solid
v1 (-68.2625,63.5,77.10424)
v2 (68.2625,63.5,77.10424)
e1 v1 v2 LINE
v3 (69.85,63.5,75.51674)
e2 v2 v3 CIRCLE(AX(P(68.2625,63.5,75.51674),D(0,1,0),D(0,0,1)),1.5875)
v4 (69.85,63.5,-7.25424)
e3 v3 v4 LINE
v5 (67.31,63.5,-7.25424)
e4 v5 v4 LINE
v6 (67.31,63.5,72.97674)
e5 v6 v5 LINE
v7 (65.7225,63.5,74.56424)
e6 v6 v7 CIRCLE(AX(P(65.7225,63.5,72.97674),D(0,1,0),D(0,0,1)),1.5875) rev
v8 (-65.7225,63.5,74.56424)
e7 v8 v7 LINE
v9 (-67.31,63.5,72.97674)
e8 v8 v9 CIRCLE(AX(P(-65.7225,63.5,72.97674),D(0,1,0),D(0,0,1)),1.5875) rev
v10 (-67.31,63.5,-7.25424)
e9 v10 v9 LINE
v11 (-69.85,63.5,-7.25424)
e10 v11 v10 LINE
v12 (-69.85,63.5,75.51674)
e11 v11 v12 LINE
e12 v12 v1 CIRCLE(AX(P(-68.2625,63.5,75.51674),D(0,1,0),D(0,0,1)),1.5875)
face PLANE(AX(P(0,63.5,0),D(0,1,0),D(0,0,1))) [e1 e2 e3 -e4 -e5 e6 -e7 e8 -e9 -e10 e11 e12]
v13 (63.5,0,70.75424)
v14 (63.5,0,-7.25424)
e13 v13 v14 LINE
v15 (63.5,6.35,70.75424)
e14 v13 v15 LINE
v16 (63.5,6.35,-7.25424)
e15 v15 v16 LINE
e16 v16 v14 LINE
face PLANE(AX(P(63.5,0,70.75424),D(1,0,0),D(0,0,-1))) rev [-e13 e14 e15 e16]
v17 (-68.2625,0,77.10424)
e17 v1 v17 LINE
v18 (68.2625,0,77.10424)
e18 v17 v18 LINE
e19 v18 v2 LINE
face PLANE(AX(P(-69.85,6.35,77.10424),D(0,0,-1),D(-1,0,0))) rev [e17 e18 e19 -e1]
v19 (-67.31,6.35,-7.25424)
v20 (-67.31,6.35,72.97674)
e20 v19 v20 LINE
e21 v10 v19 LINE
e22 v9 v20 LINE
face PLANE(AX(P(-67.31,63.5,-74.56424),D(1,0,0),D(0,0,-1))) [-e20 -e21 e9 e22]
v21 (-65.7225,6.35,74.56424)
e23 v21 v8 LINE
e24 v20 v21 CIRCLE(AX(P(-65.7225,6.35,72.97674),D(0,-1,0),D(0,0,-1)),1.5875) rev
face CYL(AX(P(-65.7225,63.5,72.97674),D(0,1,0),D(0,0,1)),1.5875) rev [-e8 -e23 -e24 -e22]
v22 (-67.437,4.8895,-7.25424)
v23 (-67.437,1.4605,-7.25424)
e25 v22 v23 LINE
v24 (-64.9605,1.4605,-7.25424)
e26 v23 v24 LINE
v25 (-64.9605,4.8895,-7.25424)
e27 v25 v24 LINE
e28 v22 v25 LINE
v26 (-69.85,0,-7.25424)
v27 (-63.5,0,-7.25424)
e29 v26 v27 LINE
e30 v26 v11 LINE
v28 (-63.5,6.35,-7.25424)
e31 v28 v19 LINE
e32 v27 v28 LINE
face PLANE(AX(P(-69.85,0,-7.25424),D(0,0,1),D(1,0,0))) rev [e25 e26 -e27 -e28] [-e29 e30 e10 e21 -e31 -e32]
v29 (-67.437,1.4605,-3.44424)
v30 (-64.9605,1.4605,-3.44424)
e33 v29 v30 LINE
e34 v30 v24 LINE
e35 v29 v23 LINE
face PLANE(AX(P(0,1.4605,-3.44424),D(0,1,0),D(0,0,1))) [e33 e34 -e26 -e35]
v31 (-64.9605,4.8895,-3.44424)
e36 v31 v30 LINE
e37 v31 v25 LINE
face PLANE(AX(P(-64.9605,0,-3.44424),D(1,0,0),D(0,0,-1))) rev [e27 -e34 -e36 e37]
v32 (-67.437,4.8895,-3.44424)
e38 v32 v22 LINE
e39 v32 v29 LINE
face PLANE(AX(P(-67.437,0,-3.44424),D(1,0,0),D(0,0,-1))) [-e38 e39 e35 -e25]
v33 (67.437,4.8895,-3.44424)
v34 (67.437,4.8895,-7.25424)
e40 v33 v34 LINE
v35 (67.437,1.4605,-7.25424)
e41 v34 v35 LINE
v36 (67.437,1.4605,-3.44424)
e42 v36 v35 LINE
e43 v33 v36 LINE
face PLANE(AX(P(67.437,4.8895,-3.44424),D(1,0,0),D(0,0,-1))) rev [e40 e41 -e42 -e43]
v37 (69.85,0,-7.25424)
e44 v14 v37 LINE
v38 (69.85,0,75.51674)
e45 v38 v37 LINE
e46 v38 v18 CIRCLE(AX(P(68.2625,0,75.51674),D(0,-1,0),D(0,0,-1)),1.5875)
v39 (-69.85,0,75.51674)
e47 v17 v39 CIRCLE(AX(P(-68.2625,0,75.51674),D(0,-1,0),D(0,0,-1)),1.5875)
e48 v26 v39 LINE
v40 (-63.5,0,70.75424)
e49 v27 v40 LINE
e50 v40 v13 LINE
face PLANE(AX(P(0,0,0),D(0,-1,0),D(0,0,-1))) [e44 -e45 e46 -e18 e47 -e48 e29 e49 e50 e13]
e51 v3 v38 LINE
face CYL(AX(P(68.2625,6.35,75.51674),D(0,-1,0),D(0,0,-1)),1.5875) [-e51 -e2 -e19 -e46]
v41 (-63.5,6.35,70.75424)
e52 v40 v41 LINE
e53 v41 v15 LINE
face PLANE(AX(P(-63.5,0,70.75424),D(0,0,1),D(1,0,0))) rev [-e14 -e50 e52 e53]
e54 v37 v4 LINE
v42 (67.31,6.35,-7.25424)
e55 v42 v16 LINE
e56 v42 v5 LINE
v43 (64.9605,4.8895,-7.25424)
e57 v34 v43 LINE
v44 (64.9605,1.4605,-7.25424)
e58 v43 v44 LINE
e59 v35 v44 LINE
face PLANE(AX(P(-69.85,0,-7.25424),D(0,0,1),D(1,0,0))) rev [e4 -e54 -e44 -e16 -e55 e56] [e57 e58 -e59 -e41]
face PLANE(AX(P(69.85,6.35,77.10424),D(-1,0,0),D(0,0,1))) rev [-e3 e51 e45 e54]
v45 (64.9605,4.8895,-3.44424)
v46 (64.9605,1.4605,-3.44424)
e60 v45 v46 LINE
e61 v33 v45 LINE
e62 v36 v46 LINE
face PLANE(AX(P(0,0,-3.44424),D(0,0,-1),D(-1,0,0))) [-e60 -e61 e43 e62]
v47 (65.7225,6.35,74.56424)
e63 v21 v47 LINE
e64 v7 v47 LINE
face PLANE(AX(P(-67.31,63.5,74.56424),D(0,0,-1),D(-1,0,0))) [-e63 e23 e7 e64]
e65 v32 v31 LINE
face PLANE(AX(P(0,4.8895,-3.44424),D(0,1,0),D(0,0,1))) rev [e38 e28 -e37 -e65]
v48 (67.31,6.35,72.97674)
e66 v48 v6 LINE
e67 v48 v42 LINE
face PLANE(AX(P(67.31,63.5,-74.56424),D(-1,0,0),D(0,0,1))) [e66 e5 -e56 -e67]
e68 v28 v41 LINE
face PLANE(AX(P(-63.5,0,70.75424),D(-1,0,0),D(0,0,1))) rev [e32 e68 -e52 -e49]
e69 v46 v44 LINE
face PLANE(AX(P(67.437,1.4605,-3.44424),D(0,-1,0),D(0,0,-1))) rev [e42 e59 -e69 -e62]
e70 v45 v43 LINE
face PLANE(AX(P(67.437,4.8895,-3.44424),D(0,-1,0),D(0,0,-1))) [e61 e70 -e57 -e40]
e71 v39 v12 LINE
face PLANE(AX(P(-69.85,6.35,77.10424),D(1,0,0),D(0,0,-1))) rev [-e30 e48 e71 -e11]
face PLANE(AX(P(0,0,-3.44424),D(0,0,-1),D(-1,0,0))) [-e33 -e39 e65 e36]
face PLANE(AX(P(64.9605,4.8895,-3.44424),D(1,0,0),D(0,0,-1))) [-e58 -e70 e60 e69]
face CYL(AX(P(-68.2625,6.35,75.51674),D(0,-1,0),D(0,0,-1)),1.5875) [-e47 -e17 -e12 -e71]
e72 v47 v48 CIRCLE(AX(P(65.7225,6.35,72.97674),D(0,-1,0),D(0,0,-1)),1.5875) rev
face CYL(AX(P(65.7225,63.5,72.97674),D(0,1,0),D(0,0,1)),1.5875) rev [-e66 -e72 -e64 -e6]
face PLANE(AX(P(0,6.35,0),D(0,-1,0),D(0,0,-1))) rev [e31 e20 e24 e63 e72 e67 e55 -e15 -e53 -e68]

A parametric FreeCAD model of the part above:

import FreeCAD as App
import Part
import Sketcher
from FreeCAD import Vector
Q = App.Units.Quantity


def edges_at(feature, points):
    """Names of the edges that pass closest to the given points."""
    edges = feature.Shape.Edges
    near = lambda p: min(range(len(edges)), key=lambda i: edges[i].distToShape(Part.Vertex(*p))[0])
    return sorted({f"Edge{near(p) + 1}" for p in points})

doc = App.newDocument("Part")
body = doc.addObject("PartDesign::Body", "Body")

sketch1 = body.newObject("Sketcher::SketchObject", "Sketch")
sketch1.AttachmentSupport = (doc.getObject("XZ_Plane"), [""])
sketch1.MapMode = "FlatFace"
sketch1.addGeometry(Part.LineSegment(Vector(-70, -77, 0), Vector(-70, 77, 0)), False)
sketch1.addGeometry(Part.LineSegment(Vector(-70, 77, 0), Vector(70, 77, 0)), False)
sketch1.addGeometry(Part.LineSegment(Vector(70, 77, 0), Vector(70, -77, 0)), False)
sketch1.addGeometry(Part.LineSegment(Vector(70, -77, 0), Vector(-70, -77, 0)), False)
sketch1.addConstraint(Sketcher.Constraint("Coincident", 0, 2, 1, 1))
sketch1.addConstraint(Sketcher.Constraint("Coincident", 1, 2, 2, 1))
sketch1.addConstraint(Sketcher.Constraint("Coincident", 2, 2, 3, 1))
sketch1.addConstraint(Sketcher.Constraint("Coincident", 3, 2, 0, 1))
sketch1.addConstraint(Sketcher.Constraint("Vertical", 0))
sketch1.addConstraint(Sketcher.Constraint("Horizontal", 1))
sketch1.addConstraint(Sketcher.Constraint("Vertical", 2))
sketch1.addConstraint(Sketcher.Constraint("Horizontal", 3))
sketch1.addConstraint(Sketcher.Constraint("Symmetric", 0, 2, 2, 2, -1, 1))
sketch1.addConstraint(Sketcher.Constraint("DistanceX", 1, 1, 1, 2, Q("5.5 in")))
sketch1.addConstraint(Sketcher.Constraint("DistanceY", 0, 1, 0, 2, Q("6.0712 in")))
pad1 = body.newObject("PartDesign::Pad", "Pad")
pad1.Profile = sketch1
pad1.Length = Q("0.25 in")
pad1.Reversed = True

sketch2 = body.newObject("Sketcher::SketchObject", "Sketch001")
sketch2.AttachmentSupport = (doc.getObject("XZ_Plane"), [""])
sketch2.MapMode = "FlatFace"
sketch2.AttachmentOffset = App.Placement(Vector(0, 0, -0.25 * 25.4), App.Rotation())
sketch2.addGeometry(Part.LineSegment(Vector(-64, -71, 0), Vector(-64, 71, 0)), False)
sketch2.addGeometry(Part.LineSegment(Vector(-64, 71, 0), Vector(64, 71, 0)), False)
sketch2.addGeometry(Part.LineSegment(Vector(64, 71, 0), Vector(64, -71, 0)), False)
sketch2.addGeometry(Part.LineSegment(Vector(64, -71, 0), Vector(-64, -71, 0)), False)
sketch2.addConstraint(Sketcher.Constraint("Coincident", 0, 2, 1, 1))
sketch2.addConstraint(Sketcher.Constraint("Coincident", 1, 2, 2, 1))
sketch2.addConstraint(Sketcher.Constraint("Coincident", 2, 2, 3, 1))
sketch2.addConstraint(Sketcher.Constraint("Coincident", 3, 2, 0, 1))
sketch2.addConstraint(Sketcher.Constraint("Vertical", 0))
sketch2.addConstraint(Sketcher.Constraint("Horizontal", 1))
sketch2.addConstraint(Sketcher.Constraint("Vertical", 2))
sketch2.addConstraint(Sketcher.Constraint("Horizontal", 3))
sketch2.addConstraint(Sketcher.Constraint("Symmetric", 0, 2, 2, 2, -1, 1))
sketch2.addConstraint(Sketcher.Constraint("DistanceX", 1, 1, 1, 2, Q("5 in")))
sketch2.addConstraint(Sketcher.Constraint("DistanceY", 0, 1, 0, 2, Q("5.5712 in")))
pocket1 = body.newObject("PartDesign::Pocket", "Pocket")
pocket1.Profile = sketch2
pocket1.Length = Q("0.25 in")
pocket1.Reversed = True

sketch3 = body.newObject("Sketcher::SketchObject", "Sketch002")
sketch3.AttachmentSupport = (doc.getObject("XZ_Plane"), [""])
sketch3.MapMode = "FlatFace"
sketch3.AttachmentOffset = App.Placement(Vector(0, 0, -0.25 * 25.4), App.Rotation())
sketch3.addGeometry(Part.LineSegment(Vector(-70, -77, 0), Vector(-70, 77, 0)), False)
sketch3.addGeometry(Part.LineSegment(Vector(-70, 77, 0), Vector(70, 77, 0)), False)
sketch3.addGeometry(Part.LineSegment(Vector(70, 77, 0), Vector(70, -77, 0)), False)
sketch3.addGeometry(Part.LineSegment(Vector(70, -77, 0), Vector(-70, -77, 0)), False)
sketch3.addGeometry(Part.LineSegment(Vector(67, 75, 0), Vector(-67, 75, 0)), False)
sketch3.addGeometry(Part.LineSegment(Vector(-67, 75, 0), Vector(-67, -75, 0)), False)
sketch3.addGeometry(Part.LineSegment(Vector(-67, -75, 0), Vector(67, -75, 0)), False)
sketch3.addGeometry(Part.LineSegment(Vector(67, -75, 0), Vector(67, 75, 0)), False)
sketch3.addConstraint(Sketcher.Constraint("Coincident", 0, 2, 1, 1))
sketch3.addConstraint(Sketcher.Constraint("Coincident", 1, 2, 2, 1))
sketch3.addConstraint(Sketcher.Constraint("Coincident", 2, 2, 3, 1))
sketch3.addConstraint(Sketcher.Constraint("Coincident", 3, 2, 0, 1))
sketch3.addConstraint(Sketcher.Constraint("Coincident", 4, 2, 5, 1))
sketch3.addConstraint(Sketcher.Constraint("Coincident", 5, 2, 6, 1))
sketch3.addConstraint(Sketcher.Constraint("Coincident", 6, 2, 7, 1))
sketch3.addConstraint(Sketcher.Constraint("Coincident", 7, 2, 4, 1))
sketch3.addConstraint(Sketcher.Constraint("Vertical", 0))
sketch3.addConstraint(Sketcher.Constraint("Horizontal", 1))
sketch3.addConstraint(Sketcher.Constraint("Vertical", 2))
sketch3.addConstraint(Sketcher.Constraint("Horizontal", 3))
sketch3.addConstraint(Sketcher.Constraint("Horizontal", 4))
sketch3.addConstraint(Sketcher.Constraint("Vertical", 5))
sketch3.addConstraint(Sketcher.Constraint("Horizontal", 6))
sketch3.addConstraint(Sketcher.Constraint("Vertical", 7))
sketch3.addConstraint(Sketcher.Constraint("Symmetric", 0, 2, 2, 2, -1, 1))
sketch3.addConstraint(Sketcher.Constraint("Symmetric", 4, 2, 6, 2, -1, 1))
sketch3.addConstraint(Sketcher.Constraint("DistanceX", 1, 1, 1, 2, Q("5.5 in")))
sketch3.addConstraint(Sketcher.Constraint("DistanceX", 4, 2, 4, 1, Q("5.3 in")))
sketch3.addConstraint(Sketcher.Constraint("DistanceY", 4, 2, 0, 2, Q("0.1 in")))
sketch3.addConstraint(Sketcher.Constraint("DistanceY", 0, 1, 0, 2, Q("6.0712 in")))
pad2 = body.newObject("PartDesign::Pad", "Pad001")
pad2.Profile = sketch3
pad2.Length = Q("2.25 in")
pad2.Reversed = True

sketch4 = body.newObject("Sketcher::SketchObject", "Sketch003")
sketch4.AttachmentSupport = (doc.getObject("XZ_Plane"), [""])
sketch4.MapMode = "FlatFace"
sketch4.AttachmentOffset = App.Placement(Vector(0, 0, -2.5 * 25.4), App.Rotation())
sketch4.addGeometry(Part.LineSegment(Vector(-70, -77, 0), Vector(-70, -7, 0)), False)
sketch4.addGeometry(Part.LineSegment(Vector(-70, -7, 0), Vector(70, -7, 0)), False)
sketch4.addGeometry(Part.LineSegment(Vector(70, -7, 0), Vector(70, -77, 0)), False)
sketch4.addGeometry(Part.LineSegment(Vector(70, -77, 0), Vector(-70, -77, 0)), False)
sketch4.addConstraint(Sketcher.Constraint("Coincident", 0, 2, 1, 1))
sketch4.addConstraint(Sketcher.Constraint("Coincident", 1, 2, 2, 1))
sketch4.addConstraint(Sketcher.Constraint("Coincident", 2, 2, 3, 1))
sketch4.addConstraint(Sketcher.Constraint("Coincident", 3, 2, 0, 1))
sketch4.addConstraint(Sketcher.Constraint("Vertical", 0))
sketch4.addConstraint(Sketcher.Constraint("Horizontal", 1))
sketch4.addConstraint(Sketcher.Constraint("Vertical", 2))
sketch4.addConstraint(Sketcher.Constraint("Horizontal", 3))
sketch4.addConstraint(Sketcher.Constraint("DistanceX", 1, 1, 1, 2, Q("5.5 in")))
sketch4.addConstraint(Sketcher.Constraint("DistanceY", 0, 1, 0, 2, Q("2.75 in")))
sketch4.addConstraint(Sketcher.Constraint("DistanceX", 0, 2, -1, 1, Q("2.75 in")))
sketch4.addConstraint(Sketcher.Constraint("DistanceY", 0, 2, -1, 1, Q("0.2856 in")))
pocket2 = body.newObject("PartDesign::Pocket", "Pocket001")
pocket2.Profile = sketch4
pocket2.Type = "ThroughAll"
pocket2.Reversed = True

sketch5 = body.newObject("Sketcher::SketchObject", "Sketch004")
sketch5.AttachmentSupport = (doc.getObject("XY_Plane"), [""])
sketch5.MapMode = "FlatFace"
sketch5.AttachmentOffset = App.Placement(Vector(0, 0, -0.2856 * 25.4), App.Rotation())
sketch5.addGeometry(Part.LineSegment(Vector(-65, 4.9, 0), Vector(-65, 1.5, 0)), False)
sketch5.addGeometry(Part.LineSegment(Vector(-65, 1.5, 0), Vector(-67.4, 1.5, 0)), False)
sketch5.addGeometry(Part.LineSegment(Vector(-67.4, 1.5, 0), Vector(-67.4, 4.9, 0)), False)
sketch5.addGeometry(Part.LineSegment(Vector(-67.4, 4.9, 0), Vector(-65, 4.9, 0)), False)
sketch5.addGeometry(Part.LineSegment(Vector(67.4, 4.9, 0), Vector(67.4, 1.5, 0)), False)
sketch5.addGeometry(Part.LineSegment(Vector(67.4, 1.5, 0), Vector(65, 1.5, 0)), False)
sketch5.addGeometry(Part.LineSegment(Vector(65, 1.5, 0), Vector(65, 4.9, 0)), False)
sketch5.addGeometry(Part.LineSegment(Vector(65, 4.9, 0), Vector(67.4, 4.9, 0)), False)
sketch5.addConstraint(Sketcher.Constraint("Coincident", 0, 2, 1, 1))
sketch5.addConstraint(Sketcher.Constraint("Coincident", 1, 2, 2, 1))
sketch5.addConstraint(Sketcher.Constraint("Coincident", 2, 2, 3, 1))
sketch5.addConstraint(Sketcher.Constraint("Coincident", 3, 2, 0, 1))
sketch5.addConstraint(Sketcher.Constraint("Coincident", 4, 2, 5, 1))
sketch5.addConstraint(Sketcher.Constraint("Coincident", 5, 2, 6, 1))
sketch5.addConstraint(Sketcher.Constraint("Coincident", 6, 2, 7, 1))
sketch5.addConstraint(Sketcher.Constraint("Coincident", 7, 2, 4, 1))
sketch5.addConstraint(Sketcher.Constraint("Vertical", 0))
sketch5.addConstraint(Sketcher.Constraint("Horizontal", 1))
sketch5.addConstraint(Sketcher.Constraint("Vertical", 2))
sketch5.addConstraint(Sketcher.Constraint("Horizontal", 3))
sketch5.addConstraint(Sketcher.Constraint("Vertical", 4))
sketch5.addConstraint(Sketcher.Constraint("Horizontal", 5))
sketch5.addConstraint(Sketcher.Constraint("Vertical", 6))
sketch5.addConstraint(Sketcher.Constraint("Horizontal", 7))
sketch5.addConstraint(Sketcher.Constraint("Symmetric", 1, 2, 4, 2, -2))
sketch5.addConstraint(Sketcher.Constraint("Symmetric", 3, 2, 6, 2, -2))
sketch5.addConstraint(Sketcher.Constraint("DistanceY", 0, 2, 0, 1, Q("0.135 in")))
sketch5.addConstraint(Sketcher.Constraint("DistanceX", 1, 2, 4, 2, Q("5.31 in")))
sketch5.addConstraint(Sketcher.Constraint("DistanceX", 1, 2, 1, 1, Q("0.0975 in")))
sketch5.addConstraint(Sketcher.Constraint("DistanceY", -1, 1, 0, 2, Q("0.0575 in")))
pocket3 = body.newObject("PartDesign::Pocket", "Pocket002")
pocket3.Profile = sketch5
pocket3.Length = Q("0.15 in")
pocket3.Reversed = True
doc.recompute()

fillet = body.newObject("PartDesign::Fillet", "Fillet")
fillet.Base = (pocket3, edges_at(pocket3, [
    (-67.31, 34.925, 74.564),
    (67.31, 34.925, 74.564),
    (69.85, 31.75, 77.104),
    (-69.85, 31.75, 77.104),
]))
fillet.Radius = Q("0.0625 in")

doc.recompute()
